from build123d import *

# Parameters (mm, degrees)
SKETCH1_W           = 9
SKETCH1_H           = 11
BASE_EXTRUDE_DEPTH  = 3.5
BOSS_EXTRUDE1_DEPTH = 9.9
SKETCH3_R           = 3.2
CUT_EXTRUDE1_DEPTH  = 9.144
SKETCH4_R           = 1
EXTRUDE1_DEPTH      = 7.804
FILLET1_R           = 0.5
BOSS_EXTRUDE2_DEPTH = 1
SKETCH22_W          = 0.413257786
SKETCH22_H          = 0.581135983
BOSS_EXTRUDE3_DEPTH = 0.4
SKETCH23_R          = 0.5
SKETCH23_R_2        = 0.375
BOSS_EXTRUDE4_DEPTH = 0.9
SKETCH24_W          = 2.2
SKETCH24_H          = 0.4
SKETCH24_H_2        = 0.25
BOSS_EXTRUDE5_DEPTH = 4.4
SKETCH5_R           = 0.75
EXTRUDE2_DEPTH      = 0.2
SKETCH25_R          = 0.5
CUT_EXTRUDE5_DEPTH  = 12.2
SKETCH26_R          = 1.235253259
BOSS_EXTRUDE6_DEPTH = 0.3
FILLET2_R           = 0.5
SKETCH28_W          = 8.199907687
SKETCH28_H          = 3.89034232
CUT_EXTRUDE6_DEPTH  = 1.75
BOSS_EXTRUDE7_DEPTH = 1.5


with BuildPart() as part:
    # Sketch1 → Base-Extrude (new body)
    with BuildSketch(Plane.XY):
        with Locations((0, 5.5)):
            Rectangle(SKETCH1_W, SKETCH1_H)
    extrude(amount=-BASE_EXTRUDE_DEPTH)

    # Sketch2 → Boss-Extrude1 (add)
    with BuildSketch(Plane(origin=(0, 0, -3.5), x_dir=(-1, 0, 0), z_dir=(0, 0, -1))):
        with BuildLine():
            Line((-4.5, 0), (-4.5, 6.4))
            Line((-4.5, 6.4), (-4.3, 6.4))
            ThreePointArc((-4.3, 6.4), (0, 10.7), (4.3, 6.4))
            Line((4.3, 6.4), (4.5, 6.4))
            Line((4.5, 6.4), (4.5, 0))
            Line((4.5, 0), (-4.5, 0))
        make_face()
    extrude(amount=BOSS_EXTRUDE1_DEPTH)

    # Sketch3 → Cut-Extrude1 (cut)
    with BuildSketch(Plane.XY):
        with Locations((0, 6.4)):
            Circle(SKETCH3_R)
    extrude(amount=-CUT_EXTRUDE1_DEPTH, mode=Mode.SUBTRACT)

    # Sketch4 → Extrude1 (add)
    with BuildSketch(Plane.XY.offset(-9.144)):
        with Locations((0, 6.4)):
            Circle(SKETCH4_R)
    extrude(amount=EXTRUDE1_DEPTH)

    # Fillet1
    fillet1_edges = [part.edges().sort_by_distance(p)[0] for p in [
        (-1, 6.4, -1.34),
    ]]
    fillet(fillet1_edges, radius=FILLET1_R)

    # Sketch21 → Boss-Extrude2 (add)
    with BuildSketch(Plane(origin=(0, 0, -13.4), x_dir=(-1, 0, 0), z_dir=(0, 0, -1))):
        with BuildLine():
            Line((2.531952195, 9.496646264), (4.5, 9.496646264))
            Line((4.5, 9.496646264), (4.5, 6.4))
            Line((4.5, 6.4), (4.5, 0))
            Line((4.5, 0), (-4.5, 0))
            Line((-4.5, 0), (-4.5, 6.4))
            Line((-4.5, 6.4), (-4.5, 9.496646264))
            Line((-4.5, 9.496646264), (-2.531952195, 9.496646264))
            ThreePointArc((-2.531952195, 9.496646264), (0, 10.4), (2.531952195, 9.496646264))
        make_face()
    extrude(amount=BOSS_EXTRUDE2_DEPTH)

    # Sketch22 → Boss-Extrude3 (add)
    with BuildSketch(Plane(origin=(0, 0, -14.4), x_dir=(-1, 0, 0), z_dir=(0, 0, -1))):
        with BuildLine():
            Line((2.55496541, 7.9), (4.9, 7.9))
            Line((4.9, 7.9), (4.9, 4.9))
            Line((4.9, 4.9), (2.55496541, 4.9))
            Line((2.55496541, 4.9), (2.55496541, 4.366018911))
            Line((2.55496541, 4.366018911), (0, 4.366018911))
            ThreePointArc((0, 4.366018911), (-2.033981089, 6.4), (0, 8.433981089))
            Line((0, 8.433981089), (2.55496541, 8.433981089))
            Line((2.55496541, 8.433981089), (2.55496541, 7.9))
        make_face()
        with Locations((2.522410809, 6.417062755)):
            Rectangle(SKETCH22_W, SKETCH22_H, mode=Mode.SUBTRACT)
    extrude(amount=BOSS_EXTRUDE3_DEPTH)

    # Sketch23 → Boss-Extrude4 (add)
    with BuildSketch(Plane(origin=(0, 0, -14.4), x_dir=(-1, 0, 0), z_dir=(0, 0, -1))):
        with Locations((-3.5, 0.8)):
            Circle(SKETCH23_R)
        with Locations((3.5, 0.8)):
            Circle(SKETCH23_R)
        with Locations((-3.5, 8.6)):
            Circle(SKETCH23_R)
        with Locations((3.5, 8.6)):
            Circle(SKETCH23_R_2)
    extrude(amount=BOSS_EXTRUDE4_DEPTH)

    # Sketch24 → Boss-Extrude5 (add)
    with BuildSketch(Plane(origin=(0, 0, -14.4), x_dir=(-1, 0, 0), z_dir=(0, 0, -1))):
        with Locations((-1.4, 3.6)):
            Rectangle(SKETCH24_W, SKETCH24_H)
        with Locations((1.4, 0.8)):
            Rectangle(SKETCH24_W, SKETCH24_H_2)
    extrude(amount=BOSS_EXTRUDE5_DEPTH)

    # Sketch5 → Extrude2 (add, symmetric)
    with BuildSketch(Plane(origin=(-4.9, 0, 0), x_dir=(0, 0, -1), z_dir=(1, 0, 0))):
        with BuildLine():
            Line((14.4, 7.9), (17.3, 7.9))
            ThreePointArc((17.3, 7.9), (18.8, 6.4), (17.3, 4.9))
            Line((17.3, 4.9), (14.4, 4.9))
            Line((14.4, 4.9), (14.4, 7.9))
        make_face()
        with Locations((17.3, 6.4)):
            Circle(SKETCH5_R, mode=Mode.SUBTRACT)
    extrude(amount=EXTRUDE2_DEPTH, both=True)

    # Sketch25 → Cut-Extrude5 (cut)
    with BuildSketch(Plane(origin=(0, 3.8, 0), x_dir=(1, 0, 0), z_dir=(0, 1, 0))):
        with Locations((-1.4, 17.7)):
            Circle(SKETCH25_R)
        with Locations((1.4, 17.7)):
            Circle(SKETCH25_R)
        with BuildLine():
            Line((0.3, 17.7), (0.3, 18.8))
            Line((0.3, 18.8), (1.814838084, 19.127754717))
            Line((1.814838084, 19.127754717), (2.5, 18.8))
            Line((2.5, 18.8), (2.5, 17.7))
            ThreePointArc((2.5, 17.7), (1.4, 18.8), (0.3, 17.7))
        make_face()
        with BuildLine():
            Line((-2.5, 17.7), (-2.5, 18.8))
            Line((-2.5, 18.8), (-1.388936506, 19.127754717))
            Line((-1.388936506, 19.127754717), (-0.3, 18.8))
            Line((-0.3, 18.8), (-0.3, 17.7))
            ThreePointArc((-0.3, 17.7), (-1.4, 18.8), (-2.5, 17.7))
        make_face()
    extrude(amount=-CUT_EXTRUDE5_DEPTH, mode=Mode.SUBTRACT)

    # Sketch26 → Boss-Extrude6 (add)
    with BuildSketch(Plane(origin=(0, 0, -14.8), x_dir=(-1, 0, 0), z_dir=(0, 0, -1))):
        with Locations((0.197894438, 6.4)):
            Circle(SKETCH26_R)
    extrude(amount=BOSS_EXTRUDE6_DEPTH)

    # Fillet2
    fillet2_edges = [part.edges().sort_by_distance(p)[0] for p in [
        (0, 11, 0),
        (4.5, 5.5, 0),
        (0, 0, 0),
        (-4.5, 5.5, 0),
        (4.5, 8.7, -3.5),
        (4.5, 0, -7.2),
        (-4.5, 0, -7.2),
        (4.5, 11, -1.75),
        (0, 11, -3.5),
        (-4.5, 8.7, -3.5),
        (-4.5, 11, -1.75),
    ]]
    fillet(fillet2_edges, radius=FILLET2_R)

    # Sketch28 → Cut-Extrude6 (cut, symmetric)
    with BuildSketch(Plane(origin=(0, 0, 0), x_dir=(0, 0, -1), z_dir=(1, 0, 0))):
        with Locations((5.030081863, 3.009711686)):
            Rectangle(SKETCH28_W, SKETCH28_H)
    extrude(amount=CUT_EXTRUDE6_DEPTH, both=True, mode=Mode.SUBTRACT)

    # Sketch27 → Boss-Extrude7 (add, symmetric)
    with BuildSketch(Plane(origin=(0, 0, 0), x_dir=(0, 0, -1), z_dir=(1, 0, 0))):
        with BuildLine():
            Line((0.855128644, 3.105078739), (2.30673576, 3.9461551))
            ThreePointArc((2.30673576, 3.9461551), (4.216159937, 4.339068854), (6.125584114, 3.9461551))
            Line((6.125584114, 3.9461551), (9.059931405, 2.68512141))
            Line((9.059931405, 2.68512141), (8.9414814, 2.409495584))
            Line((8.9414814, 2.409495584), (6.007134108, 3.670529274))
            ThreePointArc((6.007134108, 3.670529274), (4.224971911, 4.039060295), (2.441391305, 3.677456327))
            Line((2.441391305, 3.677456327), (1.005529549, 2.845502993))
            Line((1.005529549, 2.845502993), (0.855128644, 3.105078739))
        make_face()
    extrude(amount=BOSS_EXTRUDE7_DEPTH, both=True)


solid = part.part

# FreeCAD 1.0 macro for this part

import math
import FreeCAD as App
import Part
import Sketcher
Q = App.Units.Quantity


def edges_at(feature, points):
    """Names of the edges that pass closest to the given points."""
    edges = feature.Shape.Edges
    near = lambda p: min(range(len(edges)), key=lambda i: edges[i].distToShape(Part.Vertex(*p))[0])
    return sorted({f"Edge{near(p) + 1}" for p in points})


def add_polygon(sketch, points):
    """Adds a closed chain of lines whose ends are joined by coincident constraints."""
    first, n = sketch.GeometryCount, len(points)
    for a, b in zip(points, points[1:] + points[:1]):
        sketch.addGeometry(Part.LineSegment(App.Vector(*a, 0), App.Vector(*b, 0)), False)
    for i in range(n):
        sketch.addConstraint(Sketcher.Constraint("Coincident", first + i, 2, first + (i + 1) % n, 1))

doc = App.newDocument("Part")
params = doc.addObject("Spreadsheet::Sheet", "Params")
for row, (alias, value) in enumerate([
    ("sketch1_width", "9 mm"),
    ("sketch1_height", "11 mm"),
    ("pad1_length", "3.5 mm"),
    ("sketch2_radius", "4.3 mm"),
    ("sketch2_width", "9 mm"),
    ("sketch2_height", "6.4 mm"),
    ("pad2_length", "9.9 mm"),
    ("sketch3_diameter", "6.4 mm"),
    ("pocket1_length", "9.144 mm"),
    ("sketch4_diameter", "2 mm"),
    ("pad3_length", "7.804 mm"),
    ("fillet_radius", "0.5 mm"),
    ("sketch5_radius", "4 mm"),
    ("sketch5_width", "9 mm"),
    ("pad4_length", "1 mm"),
    ("sketch6_height", "3 mm"),
    ("pad5_length", "0.4 mm"),
    ("sketch7_diameter", "1 mm"),
    ("sketch7_diameter2", "0.75 mm"),
    ("pad6_length", "0.9 mm"),
    ("sketch8_width", "2.2 mm"),
    ("sketch8_height", "0.4 mm"),
    ("sketch8_height2", "0.25 mm"),
    ("pad7_length", "4.4 mm"),
    ("sketch9_diameter", "1.5 mm"),
    ("sketch9_radius", "1.5 mm"),
    ("sketch9_height", "2.9 mm"),
    ("pad8_length", "0.4 mm"),
    ("sketch10_diameter", "1 mm"),
    ("sketch10_radius", "1.1 mm"),
    ("sketch10_height", "1.1 mm"),
    ("pocket2_length", "12.2 mm"),
    ("pad9_length", "0.3 mm"),
    ("fillet2_radius", "0.5 mm"),
    ("pocket3_length", "3.5 mm"),
    ("sketch13_length", "0.3 mm"),
    ("pad10_length", "3 mm"),
], start=1):
    params.set(f"A{row}", alias)
    params.set(f"B{row}", "=" + value)
    params.setAlias(f"B{row}", alias)

body = doc.addObject("PartDesign::Body", "Body")

sketch1 = doc.addObject("Sketcher::SketchObject", "Sketch")
body.addObject(sketch1)
sketch1.AttachmentSupport = (doc.XY_Plane, [""])
sketch1.MapMode = "FlatFace"
add_polygon(sketch1, [(-4, 11), (-4, 0), (4, 0), (4, 11)])
sketch1.addConstraint(Sketcher.Constraint("Vertical", 0))
sketch1.addConstraint(Sketcher.Constraint("Horizontal", 1))
sketch1.addConstraint(Sketcher.Constraint("Vertical", 2))
sketch1.addConstraint(Sketcher.Constraint("Horizontal", 3))
sketch1.addConstraint(Sketcher.Constraint("Symmetric", 0, 2, 1, 2, -1, 1))
sketch1.addConstraint(Sketcher.Constraint("DistanceX", 1, 1, 1, 2, Q("9 mm")))
sketch1.addConstraint(Sketcher.Constraint("DistanceY", 0, 2, 0, 1, Q("11 mm")))
sketch1.setExpression("Constraints[9]", "Params.sketch1_width")
sketch1.setExpression("Constraints[10]", "Params.sketch1_height")
pad1 = doc.addObject("PartDesign::Pad", "Pad")
body.addObject(pad1)
pad1.Profile = sketch1
pad1.setExpression("Length", "Params.pad1_length")
pad1.Reversed = True

sketch2 = doc.addObject("Sketcher::SketchObject", "Sketch001")
body.addObject(sketch2)
sketch2.AttachmentSupport = (doc.XY_Plane, [""])
sketch2.MapMode = "FlatFace"
sketch2.AttachmentOffset = App.Placement(App.Vector(0, 0, -3.5), App.Rotation())
sketch2.addGeometry(Part.LineSegment(App.Vector(4.5, 6.4, 0), App.Vector(4.5, 0, 0)), False)
sketch2.addGeometry(Part.LineSegment(App.Vector(4.5, 0, 0), App.Vector(-4.5, 0, 0)), False)
sketch2.addGeometry(Part.LineSegment(App.Vector(-4.5, 0, 0), App.Vector(-4.5, 6.4, 0)), False)
sketch2.addGeometry(Part.LineSegment(App.Vector(-4.5, 6.4, 0), App.Vector(-4.3, 6.4, 0)), False)
sketch2.addGeometry(Part.ArcOfCircle(Part.Circle(App.Vector(0, 6.4, 0), App.Vector(0, 0, 1), 4.3), math.radians(0), math.radians(180)), False)
sketch2.addGeometry(Part.LineSegment(App.Vector(4.3, 6.4, 0), App.Vector(4.5, 6.4, 0)), False)
sketch2.addConstraint(Sketcher.Constraint("Coincident", 0, 2, 1, 1))
sketch2.addConstraint(Sketcher.Constraint("Coincident", 1, 2, 2, 1))
sketch2.addConstraint(Sketcher.Constraint("Coincident", 2, 2, 3, 1))
sketch2.addConstraint(Sketcher.Constraint("Coincident", 3, 2, 4, 2))
sketch2.addConstraint(Sketcher.Constraint("Coincident", 4, 1, 5, 1))
sketch2.addConstraint(Sketcher.Constraint("Coincident", 5, 2, 0, 1))
sketch2.addConstraint(Sketcher.Constraint("Vertical", 0))
sketch2.addConstraint(Sketcher.Constraint("Horizontal", 1))
sketch2.addConstraint(Sketcher.Constraint("Vertical", 2))
sketch2.addConstraint(Sketcher.Constraint("Horizontal", 3))
sketch2.addConstraint(Sketcher.Constraint("Horizontal", 5))
sketch2.addConstraint(Sketcher.Constraint("Symmetric", 0, 2, 1, 2, -1, 1))
sketch2.addConstraint(Sketcher.Constraint("Symmetric", 3, 2, 4, 1, -2))
sketch2.addConstraint(Sketcher.Constraint("Horizontal", 4, 3, 2, 2))
sketch2.addConstraint(Sketcher.Constraint("Radius", 4, Q("4.3 mm")))
sketch2.addConstraint(Sketcher.Constraint("DistanceX", 1, 2, 1, 1, Q("9 mm")))
sketch2.addConstraint(Sketcher.Constraint("DistanceY", 0, 2, 0, 1, Q("6.4 mm")))
sketch2.setExpression("Constraints[14]", "Params.sketch2_radius")
sketch2.setExpression("Constraints[15]", "Params.sketch2_width")
sketch2.setExpression("Constraints[16]", "Params.sketch2_height")
pad2 = doc.addObject("PartDesign::Pad", "Pad001")
body.addObject(pad2)
pad2.Profile = sketch2
pad2.setExpression("Length", "Params.pad2_length")
pad2.Reversed = True

sketch3 = doc.addObject("Sketcher::SketchObject", "Sketch002")
body.addObject(sketch3)
sketch3.AttachmentSupport = (doc.XY_Plane, [""])
sketch3.MapMode = "FlatFace"
sketch3.addGeometry(Part.Circle(App.Vector(0, 6.4, 0), App.Vector(0, 0, 1), 3.2), False)
sketch3.addConstraint(Sketcher.Constraint("PointOnObject", 0, 3, -2))
sketch3.addConstraint(Sketcher.Constraint("Diameter", 0, Q("6.4 mm")))
sketch3.addConstraint(Sketcher.Constraint("DistanceY", -1, 1, 0, 3, Q("6.4 mm")))
sketch3.setExpression("Constraints[1]", "Params.sketch3_diameter")
pocket1 = doc.addObject("PartDesign::Pocket", "Pocket")
body.addObject(pocket1)
pocket1.Profile = sketch3
pocket1.setExpression("Length", "Params.pocket1_length")

sketch4 = doc.addObject("Sketcher::SketchObject", "Sketch003")
body.addObject(sketch4)
sketch4.AttachmentSupport = (doc.XY_Plane, [""])
sketch4.MapMode = "FlatFace"
sketch4.AttachmentOffset = App.Placement(App.Vector(0, 0, -9.144), App.Rotation())
sketch4.addGeometry(Part.Circle(App.Vector(0, 6.4, 0), App.Vector(0, 0, 1), 1), False)
sketch4.addConstraint(Sketcher.Constraint("PointOnObject", 0, 3, -2))
sketch4.addConstraint(Sketcher.Constraint("Diameter", 0, Q("2 mm")))
sketch4.addConstraint(Sketcher.Constraint("DistanceY", -1, 1, 0, 3, Q("6.4 mm")))
sketch4.setExpression("Constraints[1]", "Params.sketch4_diameter")
pad3 = doc.addObject("PartDesign::Pad", "Pad002")
body.addObject(pad3)
pad3.Profile = sketch4
pad3.setExpression("Length", "Params.pad3_length")
doc.recompute()

fillet = doc.addObject("PartDesign::Fillet", "Fillet")
body.addObject(fillet)
fillet.Base = (pad3, edges_at(pad3, [(-1, 6.4, -1.34)]))
fillet.setExpression("Radius", "Params.fillet_radius")

sketch5 = doc.addObject("Sketcher::SketchObject", "Sketch004")
body.addObject(sketch5)
sketch5.AttachmentSupport = (doc.XY_Plane, [""])
sketch5.MapMode = "FlatFace"
sketch5.AttachmentOffset = App.Placement(App.Vector(0, 0, -13.4), App.Rotation())
sketch5.addGeometry(Part.LineSegment(App.Vector(-4.5, 9.5, 0), App.Vector(-2.5, 9.5, 0)), False)
sketch5.addGeometry(Part.ArcOfCircle(Part.Circle(App.Vector(0, 6.4, 0), App.Vector(0, 0, 1), 4), math.radians(51), math.radians(129)), False)
sketch5.addGeometry(Part.LineSegment(App.Vector(2.5, 9.5, 0), App.Vector(4.5, 9.5, 0)), False)
sketch5.addGeometry(Part.LineSegment(App.Vector(4.5, 9.5, 0), App.Vector(4.5, 0, 0)), False)
sketch5.addGeometry(Part.LineSegment(App.Vector(4.5, 0, 0), App.Vector(-4.5, 0, 0)), False)
sketch5.addGeometry(Part.LineSegment(App.Vector(-4.5, 0, 0), App.Vector(-4.5, 9.5, 0)), False)
sketch5.addConstraint(Sketcher.Constraint("Coincident", 0, 2, 1, 2))
sketch5.addConstraint(Sketcher.Constraint("Coincident", 1, 1, 2, 1))
sketch5.addConstraint(Sketcher.Constraint("Coincident", 2, 2, 3, 1))
sketch5.addConstraint(Sketcher.Constraint("Coincident", 3, 2, 4, 1))
sketch5.addConstraint(Sketcher.Constraint("Coincident", 4, 2, 5, 1))
sketch5.addConstraint(Sketcher.Constraint("Coincident", 5, 2, 0, 1))
sketch5.addConstraint(Sketcher.Constraint("Horizontal", 0))
sketch5.addConstraint(Sketcher.Constraint("Horizontal", 2))
sketch5.addConstraint(Sketcher.Constraint("Vertical", 3))
sketch5.addConstraint(Sketcher.Constraint("Horizontal", 4))
sketch5.addConstraint(Sketcher.Constraint("Vertical", 5))
sketch5.addConstraint(Sketcher.Constraint("Symmetric", 3, 2, 4, 2, -1, 1))
sketch5.addConstraint(Sketcher.Constraint("Symmetric", 0, 2, 1, 1, -2))
sketch5.addConstraint(Sketcher.Constraint("Radius", 1, Q("4 mm")))
sketch5.addConstraint(Sketcher.Constraint("DistanceX", 4, 2, 4, 1, Q("9 mm")))
sketch5.addConstraint(Sketcher.Constraint("DistanceY", -1, 1, 1, 3, Q("6.4 mm")))
sketch5.addConstraint(Sketcher.Constraint("DistanceX", 0, 1, 0, 2, Q("1.968048 mm")))
sketch5.setExpression("Constraints[13]", "Params.sketch5_radius")
sketch5.setExpression("Constraints[14]", "Params.sketch5_width")
pad4 = doc.addObject("PartDesign::Pad", "Pad003")
body.addObject(pad4)
pad4.Profile = sketch5
pad4.setExpression("Length", "Params.pad4_length")
pad4.Reversed = True

sketch6 = doc.addObject("Sketcher::SketchObject", "Sketch005")
body.addObject(sketch6)
sketch6.AttachmentSupport = (doc.XY_Plane, [""])
sketch6.MapMode = "FlatFace"
sketch6.AttachmentOffset = App.Placement(App.Vector(0, 0, -14.4), App.Rotation())
sketch6.addGeometry(Part.LineSegment(App.Vector(-4.9, 7.9, 0), App.Vector(-2.55, 7.9, 0)), False)
sketch6.addGeometry(Part.LineSegment(App.Vector(-2.55, 7.9, 0), App.Vector(-2.55, 8.43, 0)), False)
sketch6.addGeometry(Part.LineSegment(App.Vector(-2.55, 8.43, 0), App.Vector(0, 8.43, 0)), False)
sketch6.addGeometry(Part.ArcOfCircle(Part.Circle(App.Vector(0, 6.4, 0), App.Vector(0, 0, 1), 2.03), math.radians(-90), math.radians(90)), False)
sketch6.addGeometry(Part.LineSegment(App.Vector(0, 4.37, 0), App.Vector(-2.55, 4.37, 0)), False)
sketch6.addGeometry(Part.LineSegment(App.Vector(-2.55, 4.37, 0), App.Vector(-2.55, 4.9, 0)), False)
sketch6.addGeometry(Part.LineSegment(App.Vector(-2.55, 4.9, 0), App.Vector(-4.9, 4.9, 0)), False)
sketch6.addGeometry(Part.LineSegment(App.Vector(-4.9, 4.9, 0), App.Vector(-4.9, 7.9, 0)), False)
add_polygon(sketch6, [(-2.32, 6.13), (-2.32, 6.71), (-2.73, 6.71), (-2.73, 6.13)])
sketch6.addConstraint(Sketcher.Constraint("Coincident", 0, 2, 1, 1))
sketch6.addConstraint(Sketcher.Constraint("Coincident", 1, 2, 2, 1))
sketch6.addConstraint(Sketcher.Constraint("Tangent", 2, 2, 3, 2))
sketch6.addConstraint(Sketcher.Constraint("Tangent", 3, 1, 4, 1))
sketch6.addConstraint(Sketcher.Constraint("Coincident", 4, 2, 5, 1))
sketch6.addConstraint(Sketcher.Constraint("Coincident", 5, 2, 6, 1))
sketch6.addConstraint(Sketcher.Constraint("Coincident", 6, 2, 7, 1))
sketch6.addConstraint(Sketcher.Constraint("Coincident", 7, 2, 0, 1))
sketch6.addConstraint(Sketcher.Constraint("Horizontal", 0))
sketch6.addConstraint(Sketcher.Constraint("Vertical", 1))
sketch6.addConstraint(Sketcher.Constraint("Horizontal", 2))
sketch6.addConstraint(Sketcher.Constraint("Horizontal", 4))
sketch6.addConstraint(Sketcher.Constraint("Vertical", 5))
sketch6.addConstraint(Sketcher.Constraint("Horizontal", 6))
sketch6.addConstraint(Sketcher.Constraint("Vertical", 7))
sketch6.addConstraint(Sketcher.Constraint("Vertical", 8))
sketch6.addConstraint(Sketcher.Constraint("Horizontal", 9))
sketch6.addConstraint(Sketcher.Constraint("Vertical", 10))
sketch6.addConstraint(Sketcher.Constraint("Horizontal", 11))
sketch6.addConstraint(Sketcher.Constraint("PointOnObject", 3, 3, -2))
sketch6.addConstraint(Sketcher.Constraint("Vertical", 1, 2, 4, 2))
sketch6.addConstraint(Sketcher.Constraint("Equal", 1, 5))
sketch6.addConstraint(Sketcher.Constraint("DistanceY", 7, 1, 7, 2, Q("3 mm")))
sketch6.addConstraint(Sketcher.Constraint("DistanceY", -1, 1, 3, 3, Q("6.4 mm")))
sketch6.addConstraint(Sketcher.Constraint("DistanceX", 6, 2, -1, 1, Q("4.9 mm")))
sketch6.addConstraint(Sketcher.Constraint("Radius", 3, Q("2.033981 mm")))
sketch6.addConstraint(Sketcher.Constraint("DistanceX", 0, 1, 0, 2, Q("2.345035 mm")))
sketch6.addConstraint(Sketcher.Constraint("DistanceX", 9, 2, 9, 1, Q("0.413258 mm")))
sketch6.addConstraint(Sketcher.Constraint("DistanceY", 8, 1, 8, 2, Q("0.581136 mm")))
sketch6.addConstraint(Sketcher.Constraint("DistanceX", 8, 2, -1, 1, Q("2.315782 mm")))
sketch6.addConstraint(Sketcher.Constraint("DistanceY", -1, 1, 8, 2, Q("6.707631 mm")))
sketch6.setExpression("Constraints[26]", "Params.sketch6_height")
pad5 = doc.addObject("PartDesign::Pad", "Pad004")
body.addObject(pad5)
pad5.Profile = sketch6
pad5.setExpression("Length", "Params.pad5_length")
pad5.Reversed = True

sketch7 = doc.addObject("Sketcher::SketchObject", "Sketch006")
body.addObject(sketch7)
sketch7.AttachmentSupport = (doc.XY_Plane, [""])
sketch7.MapMode = "FlatFace"
sketch7.AttachmentOffset = App.Placement(App.Vector(0, 0, -14.4), App.Rotation())
sketch7.addGeometry(Part.Circle(App.Vector(3.5, 0.8, 0), App.Vector(0, 0, 1), 0.5), False)
sketch7.addGeometry(Part.Circle(App.Vector(-3.5, 0.8, 0), App.Vector(0, 0, 1), 0.5), False)
sketch7.addGeometry(Part.Circle(App.Vector(3.5, 8.6, 0), App.Vector(0, 0, 1), 0.5), False)
sketch7.addGeometry(Part.Circle(App.Vector(-3.5, 8.6, 0), App.Vector(0, 0, 1), 0.38), False)
sketch7.addConstraint(Sketcher.Constraint("Equal", 0, 1))
sketch7.addConstraint(Sketcher.Constraint("Equal", 1, 2))
sketch7.addConstraint(Sketcher.Constraint("Symmetric", 0, 3, 1, 3, -2))
sketch7.addConstraint(Sketcher.Constraint("Symmetric", 2, 3, 3, 3, -2))
sketch7.addConstraint(Sketcher.Constraint("Vertical", 0, 3, 2, 3))
sketch7.addConstraint(Sketcher.Constraint("Diameter", 0, Q("1 mm")))
sketch7.addConstraint(Sketcher.Constraint("Diameter", 3, Q("0.75 mm")))
sketch7.addConstraint(Sketcher.Constraint("DistanceX", 1, 3, 0, 3, Q("7 mm")))
sketch7.addConstraint(Sketcher.Constraint("DistanceY", -1, 1, 0, 3, Q("0.8 mm")))
sketch7.addConstraint(Sketcher.Constraint("DistanceY", -1, 1, 2, 3, Q("8.6 mm")))
sketch7.setExpression("Constraints[5]", "Params.sketch7_diameter")
sketch7.setExpression("Constraints[6]", "Params.sketch7_diameter2")
pad6 = doc.addObject("PartDesign::Pad", "Pad005")
body.addObject(pad6)
pad6.Profile = sketch7
pad6.setExpression("Length", "Params.pad6_length")
pad6.Reversed = True

sketch8 = doc.addObject("Sketcher::SketchObject", "Sketch007")
body.addObject(sketch8)
sketch8.AttachmentSupport = (doc.XY_Plane, [""])
sketch8.MapMode = "FlatFace"
sketch8.AttachmentOffset = App.Placement(App.Vector(0, 0, -14.4), App.Rotation())
add_polygon(sketch8, [(2.5, 3.8), (2.5, 3.4), (0.3, 3.4), (0.3, 3.8)])
add_polygon(sketch8, [(-0.3, 0.93), (-0.3, 0.68), (-2.5, 0.68), (-2.5, 0.93)])
sketch8.addConstraint(Sketcher.Constraint("Vertical", 0))
sketch8.addConstraint(Sketcher.Constraint("Horizontal", 1))
sketch8.addConstraint(Sketcher.Constraint("Vertical", 2))
sketch8.addConstraint(Sketcher.Constraint("Horizontal", 3))
sketch8.addConstraint(Sketcher.Constraint("Vertical", 4))
sketch8.addConstraint(Sketcher.Constraint("Horizontal", 5))
sketch8.addConstraint(Sketcher.Constraint("Vertical", 6))
sketch8.addConstraint(Sketcher.Constraint("Horizontal", 7))
sketch8.addConstraint(Sketcher.Constraint("Equal", 3, 5))
sketch8.addConstraint(Sketcher.Constraint("DistanceX", 1, 2, 1, 1, Q("2.2 mm")))
sketch8.addConstraint(Sketcher.Constraint("DistanceY", 0, 2, 0, 1, Q("0.4 mm")))
sketch8.addConstraint(Sketcher.Constraint("DistanceX", 5, 2, 0, 2, Q("5 mm")))
sketch8.addConstraint(Sketcher.Constraint("DistanceY", 4, 2, 4, 1, Q("0.25 mm")))
sketch8.addConstraint(Sketcher.Constraint("DistanceX", -1, 1, 0, 2, Q("2.5 mm")))
sketch8.addConstraint(Sketcher.Constraint("DistanceY", -1, 1, 0, 2, Q("3.4 mm")))
sketch8.addConstraint(Sketcher.Constraint("DistanceY", -1, 1, 4, 2, Q("0.675 mm")))
sketch8.setExpression("Constraints[17]", "Params.sketch8_width")
sketch8.setExpression("Constraints[18]", "Params.sketch8_height")
sketch8.setExpression("Constraints[20]", "Params.sketch8_height2")
pad7 = doc.addObject("PartDesign::Pad", "Pad006")
body.addObject(pad7)
pad7.Profile = sketch8
pad7.setExpression("Length", "Params.pad7_length")
pad7.Reversed = True

sketch9 = doc.addObject("Sketcher::SketchObject", "Sketch008")
body.addObject(sketch9)
sketch9.AttachmentSupport = (doc.YZ_Plane, [""])
sketch9.MapMode = "FlatFace"
sketch9.AttachmentOffset = App.Placement(App.Vector(0, 0, -4.9), App.Rotation())
sketch9.addGeometry(Part.LineSegment(App.Vector(7.9, -17.3, 0), App.Vector(7.9, -14.4, 0)), False)
sketch9.addGeometry(Part.LineSegment(App.Vector(7.9, -14.4, 0), App.Vector(4.9, -14.4, 0)), False)
sketch9.addGeometry(Part.LineSegment(App.Vector(4.9, -14.4, 0), App.Vector(4.9, -17.3, 0)), False)
sketch9.addGeometry(Part.ArcOfCircle(Part.Circle(App.Vector(6.4, -17.3, 0), App.Vector(0, 0, 1), 1.5), math.radians(180), math.radians(360)), False)
sketch9.addGeometry(Part.Circle(App.Vector(6.4, -17.3, 0), App.Vector(0, 0, 1), 0.8), False)
sketch9.addConstraint(Sketcher.Constraint("Coincident", 0, 2, 1, 1))
sketch9.addConstraint(Sketcher.Constraint("Coincident", 1, 2, 2, 1))
sketch9.addConstraint(Sketcher.Constraint("Tangent", 2, 2, 3, 1))
sketch9.addConstraint(Sketcher.Constraint("Tangent", 3, 2, 0, 1))
sketch9.addConstraint(Sketcher.Constraint("Vertical", 0))
sketch9.addConstraint(Sketcher.Constraint("Horizontal", 1))
sketch9.addConstraint(Sketcher.Constraint("Vertical", 2))
sketch9.addConstraint(Sketcher.Constraint("Coincident", 4, 3, 3, 3))
sketch9.addConstraint(Sketcher.Constraint("Diameter", 4, Q("1.5 mm")))
sketch9.addConstraint(Sketcher.Constraint("Radius", 3, Q("1.5 mm")))
sketch9.addConstraint(Sketcher.Constraint("DistanceY", 0, 1, 0, 2, Q("2.9 mm")))
sketch9.addConstraint(Sketcher.Constraint("DistanceX", -1, 1, 3, 3, Q("6.4 mm")))
sketch9.addConstraint(Sketcher.Constraint("DistanceY", 3, 3, -1, 1, Q("17.3 mm")))
sketch9.setExpression("Constraints[8]", "Params.sketch9_diameter")
sketch9.setExpression("Constraints[9]", "Params.sketch9_radius")
sketch9.setExpression("Constraints[10]", "Params.sketch9_height")
pad8 = doc.addObject("PartDesign::Pad", "Pad007")
body.addObject(pad8)
pad8.Profile = sketch9
pad8.setExpression("Length", "Params.pad8_length")
pad8.Midplane = True

sketch10 = doc.addObject("Sketcher::SketchObject", "Sketch009")
body.addObject(sketch10)
sketch10.AttachmentSupport = (doc.XZ_Plane, [""])
sketch10.MapMode = "FlatFace"
sketch10.AttachmentOffset = App.Placement(App.Vector(0, 0, -3.8), App.Rotation())
sketch10.addGeometry(Part.Circle(App.Vector(-1.4, -17.7, 0), App.Vector(0, 0, 1), 0.5), False)
sketch10.addGeometry(Part.Circle(App.Vector(1.4, -17.7, 0), App.Vector(0, 0, 1), 0.5), False)
sketch10.addGeometry(Part.LineSegment(App.Vector(0.3, -18.8, 0), App.Vector(0.3, -17.7, 0)), False)
sketch10.addGeometry(Part.ArcOfCircle(Part.Circle(App.Vector(1.4, -17.7, 0), App.Vector(0, 0, 1), 1.1), math.radians(180), math.radians(360)), False)
sketch10.addGeometry(Part.LineSegment(App.Vector(2.5, -17.7, 0), App.Vector(2.5, -18.8, 0)), False)
sketch10.addGeometry(Part.LineSegment(App.Vector(2.5, -18.8, 0), App.Vector(1.8, -19.1, 0)), False)
sketch10.addGeometry(Part.LineSegment(App.Vector(1.8, -19.1, 0), App.Vector(0.3, -18.8, 0)), False)
sketch10.addGeometry(Part.LineSegment(App.Vector(-2.5, -18.8, 0), App.Vector(-2.5, -17.7, 0)), False)
sketch10.addGeometry(Part.ArcOfCircle(Part.Circle(App.Vector(-1.4, -17.7, 0), App.Vector(0, 0, 1), 1.1), math.radians(180), math.radians(360)), False)
sketch10.addGeometry(Part.LineSegment(App.Vector(-0.3, -17.7, 0), App.Vector(-0.3, -18.8, 0)), False)
sketch10.addGeometry(Part.LineSegment(App.Vector(-0.3, -18.8, 0), App.Vector(-1.4, -19.1, 0)), False)
sketch10.addGeometry(Part.LineSegment(App.Vector(-1.4, -19.1, 0), App.Vector(-2.5, -18.8, 0)), False)
sketch10.addConstraint(Sketcher.Constraint("Tangent", 2, 2, 3, 1))
sketch10.addConstraint(Sketcher.Constraint("Tangent", 3, 2, 4, 1))
sketch10.addConstraint(Sketcher.Constraint("Coincident", 4, 2, 5, 1))
sketch10.addConstraint(Sketcher.Constraint("Coincident", 5, 2, 6, 1))
sketch10.addConstraint(Sketcher.Constraint("Coincident", 6, 2, 2, 1))
sketch10.addConstraint(Sketcher.Constraint("Tangent", 7, 2, 8, 1))
sketch10.addConstraint(Sketcher.Constraint("Tangent", 8, 2, 9, 1))
sketch10.addConstraint(Sketcher.Constraint("Coincident", 9, 2, 10, 1))
sketch10.addConstraint(Sketcher.Constraint("Coincident", 10, 2, 11, 1))
sketch10.addConstraint(Sketcher.Constraint("Coincident", 11, 2, 7, 1))
sketch10.addConstraint(Sketcher.Constraint("Vertical", 2))
sketch10.addConstraint(Sketcher.Constraint("Vertical", 4))
sketch10.addConstraint(Sketcher.Constraint("Vertical", 7))
sketch10.addConstraint(Sketcher.Constraint("Vertical", 9))
sketch10.addConstraint(Sketcher.Constraint("Coincident", 3, 3, 1, 3))
sketch10.addConstraint(Sketcher.Constraint("Coincident", 8, 3, 0, 3))
sketch10.addConstraint(Sketcher.Constraint("Equal", 0, 1))
sketch10.addConstraint(Sketcher.Constraint("Equal", 3, 8))
sketch10.addConstraint(Sketcher.Constraint("Symmetric", 0, 3, 1, 3, -2))
sketch10.addConstraint(Sketcher.Constraint("Horizontal", 4, 2, 6, 2))
sketch10.addConstraint(Sketcher.Constraint("Horizontal", 6, 2, 9, 2))
sketch10.addConstraint(Sketcher.Constraint("Horizontal", 5, 2, 10, 2))
sketch10.addConstraint(Sketcher.Constraint("Horizontal", 9, 2, 11, 2))
sketch10.addConstraint(Sketcher.Constraint("Diameter", 0, Q("1 mm")))
sketch10.addConstraint(Sketcher.Constraint("Radius", 3, Q("1.1 mm")))
sketch10.addConstraint(Sketcher.Constraint("DistanceY", 2, 1, 2, 2, Q("1.1 mm")))
sketch10.addConstraint(Sketcher.Constraint("DistanceX", 0, 3, -1, 1, Q("1.4 mm")))
sketch10.addConstraint(Sketcher.Constraint("DistanceY", 0, 3, -1, 1, Q("17.7 mm")))
sketch10.addConstraint(Sketcher.Constraint("Distance", 5, Q("0.75952 mm")))
sketch10.addConstraint(Sketcher.Constraint("Distance", 6, Q("1.54989 mm")))
sketch10.addConstraint(Sketcher.Constraint("Distance", 10, Q("1.137192 mm")))
sketch10.setExpression("Constraints[23]", "Params.sketch10_diameter")
sketch10.setExpression("Constraints[24]", "Params.sketch10_radius")
sketch10.setExpression("Constraints[25]", "Params.sketch10_height")
pocket2 = doc.addObject("PartDesign::Pocket", "Pocket001")
body.addObject(pocket2)
pocket2.Profile = sketch10
pocket2.setExpression("Length", "Params.pocket2_length")
pocket2.Reversed = True

sketch11 = doc.addObject("Sketcher::SketchObject", "Sketch010")
body.addObject(sketch11)
sketch11.AttachmentSupport = (doc.XY_Plane, [""])
sketch11.MapMode = "FlatFace"
sketch11.AttachmentOffset = App.Placement(App.Vector(0, 0, -14.8), App.Rotation())
sketch11.addGeometry(Part.Circle(App.Vector(-0.2, 6.4, 0), App.Vector(0, 0, 1), 1.2), False)
sketch11.addConstraint(Sketcher.Constraint("DistanceY", -1, 1, 0, 3, Q("6.4 mm")))
sketch11.addConstraint(Sketcher.Constraint("Diameter", 0, Q("2.470507 mm")))
sketch11.addConstraint(Sketcher.Constraint("DistanceX", 0, 3, -1, 1, Q("0.197894 mm")))
pad9 = doc.addObject("PartDesign::Pad", "Pad008")
body.addObject(pad9)
pad9.Profile = sketch11
pad9.setExpression("Length", "Params.pad9_length")
pad9.Reversed = True
doc.recompute()

fillet2 = doc.addObject("PartDesign::Fillet", "Fillet001")
body.addObject(fillet2)
fillet2.Base = (pad9, edges_at(pad9, [
    (0, 11, 0),
    (4.5, 5.5, 0),
    (0, 0, 0),
    (-4.5, 5.5, 0),
    (4.5, 8.7, -3.5),
    (4.5, 0, -7.2),
    (-4.5, 0, -7.2),
    (4.5, 11, -1.75),
    (0, 11, -3.5),
    (-4.5, 8.7, -3.5),
    (-4.5, 11, -1.75),
]))
fillet2.setExpression("Radius", "Params.fillet2_radius")

sketch12 = doc.addObject("Sketcher::SketchObject", "Sketch011")
body.addObject(sketch12)
sketch12.AttachmentSupport = (doc.YZ_Plane, [""])
sketch12.MapMode = "FlatFace"
add_polygon(sketch12, [(5, -0.9), (1.1, -0.9), (1.1, -9.1), (5, -9.1)])
sketch12.addConstraint(Sketcher.Constraint("Horizontal", 0))
sketch12.addConstraint(Sketcher.Constraint("Vertical", 1))
sketch12.addConstraint(Sketcher.Constraint("Horizontal", 2))
sketch12.addConstraint(Sketcher.Constraint("Vertical", 3))
sketch12.addConstraint(Sketcher.Constraint("DistanceX", 0, 2, 0, 1, Q("3.890342 mm")))
sketch12.addConstraint(Sketcher.Constraint("DistanceY", 1, 2, 1, 1, Q("8.199908 mm")))
sketch12.addConstraint(Sketcher.Constraint("DistanceX", -1, 1, 0, 2, Q("1.064541 mm")))
sketch12.addConstraint(Sketcher.Constraint("DistanceY", 0, 2, -1, 1, Q("0.930128 mm")))
pocket3 = doc.addObject("PartDesign::Pocket", "Pocket002")
body.addObject(pocket3)
pocket3.Profile = sketch12
pocket3.setExpression("Length", "Params.pocket3_length")
pocket3.Midplane = True

sketch13 = doc.addObject("Sketcher::SketchObject", "Sketch012")
body.addObject(sketch13)
sketch13.AttachmentSupport = (doc.YZ_Plane, [""])
sketch13.MapMode = "FlatFace"
sketch13.addGeometry(Part.LineSegment(App.Vector(3.95, -2.31, 0), App.Vector(3.11, -0.86, 0)), False)
sketch13.addGeometry(Part.LineSegment(App.Vector(3.11, -0.86, 0), App.Vector(2.85, -1.01, 0)), False)
sketch13.addGeometry(Part.LineSegment(App.Vector(2.85, -1.01, 0), App.Vector(3.68, -2.44, 0)), False)
sketch13.addGeometry(Part.ArcOfCircle(Part.Circle(App.Vector(-0.5, -4.22, 0), App.Vector(0, 0, 1), 4.54), math.radians(-23), math.radians(23)), False)
sketch13.addGeometry(Part.LineSegment(App.Vector(3.67, -6.01, 0), App.Vector(2.41, -8.94, 0)), False)
sketch13.addGeometry(Part.LineSegment(App.Vector(2.41, -8.94, 0), App.Vector(2.69, -9.06, 0)), False)
sketch13.addGeometry(Part.LineSegment(App.Vector(2.69, -9.06, 0), App.Vector(3.95, -6.13, 0)), False)
sketch13.addGeometry(Part.ArcOfCircle(Part.Circle(App.Vector(-0.5, -4.22, 0), App.Vector(0, 0, 1), 4.84), math.radians(-23), math.radians(23)), False)
sketch13.addConstraint(Sketcher.Constraint("Coincident", 0, 2, 1, 1))
sketch13.addConstraint(Sketcher.Constraint("Coincident", 1, 2, 2, 1))
sketch13.addConstraint(Sketcher.Constraint("Coincident", 2, 2, 3, 2))
sketch13.addConstraint(Sketcher.Constraint("Tangent", 3, 1, 4, 1))
sketch13.addConstraint(Sketcher.Constraint("Coincident", 4, 2, 5, 1))
sketch13.addConstraint(Sketcher.Constraint("Coincident", 5, 2, 6, 1))
sketch13.addConstraint(Sketcher.Constraint("Tangent", 6, 2, 7, 1))
sketch13.addConstraint(Sketcher.Constraint("Coincident", 7, 2, 0, 1))
sketch13.addConstraint(Sketcher.Constraint("Coincident", 7, 3, 3, 3))
sketch13.addConstraint(Sketcher.Constraint("Perpendicular", 0, 1))
sketch13.addConstraint(Sketcher.Constraint("Perpendicular", 1, 2))
sketch13.addConstraint(Sketcher.Constraint("Perpendicular", 4, 5))
sketch13.addConstraint(Sketcher.Constraint("Perpendicular", 5, 6))
sketch13.addConstraint(Sketcher.Constraint("Vertical", 6, 2, 7, 2))
sketch13.addConstraint(Sketcher.Constraint("Equal", 1, 5))
sketch13.addConstraint(Sketcher.Constraint("Distance", 1, Q("0.3 mm")))
sketch13.addConstraint(Sketcher.Constraint("Radius", 3, Q("4.536026 mm")))
sketch13.addConstraint(Sketcher.Constraint("DistanceY", 1, 2, 0, 2, Q("0.150401 mm")))
sketch13.addConstraint(Sketcher.Constraint("DistanceX", 2, 2, 6, 2, Q("0.268699 mm")))
sketch13.addConstraint(Sketcher.Constraint("Distance", 0, Q("1.677669 mm")))
sketch13.addConstraint(Sketcher.Constraint("DistanceY", 3, 3, -1, 1, Q("4.21616 mm")))
sketch13.addConstraint(Sketcher.Constraint("DistanceX", -1, 1, 0, 2, Q("3.105079 mm")))
sketch13.addConstraint(Sketcher.Constraint("DistanceY", 4, 2, -1, 1, Q("8.941481 mm")))
sketch13.setExpression("Constraints[15]", "Params.sketch13_length")
pad10 = doc.addObject("PartDesign::Pad", "Pad009")
body.addObject(pad10)
pad10.Profile = sketch13
pad10.setExpression("Length", "Params.pad10_length")
pad10.Midplane = True

doc.recompute()
